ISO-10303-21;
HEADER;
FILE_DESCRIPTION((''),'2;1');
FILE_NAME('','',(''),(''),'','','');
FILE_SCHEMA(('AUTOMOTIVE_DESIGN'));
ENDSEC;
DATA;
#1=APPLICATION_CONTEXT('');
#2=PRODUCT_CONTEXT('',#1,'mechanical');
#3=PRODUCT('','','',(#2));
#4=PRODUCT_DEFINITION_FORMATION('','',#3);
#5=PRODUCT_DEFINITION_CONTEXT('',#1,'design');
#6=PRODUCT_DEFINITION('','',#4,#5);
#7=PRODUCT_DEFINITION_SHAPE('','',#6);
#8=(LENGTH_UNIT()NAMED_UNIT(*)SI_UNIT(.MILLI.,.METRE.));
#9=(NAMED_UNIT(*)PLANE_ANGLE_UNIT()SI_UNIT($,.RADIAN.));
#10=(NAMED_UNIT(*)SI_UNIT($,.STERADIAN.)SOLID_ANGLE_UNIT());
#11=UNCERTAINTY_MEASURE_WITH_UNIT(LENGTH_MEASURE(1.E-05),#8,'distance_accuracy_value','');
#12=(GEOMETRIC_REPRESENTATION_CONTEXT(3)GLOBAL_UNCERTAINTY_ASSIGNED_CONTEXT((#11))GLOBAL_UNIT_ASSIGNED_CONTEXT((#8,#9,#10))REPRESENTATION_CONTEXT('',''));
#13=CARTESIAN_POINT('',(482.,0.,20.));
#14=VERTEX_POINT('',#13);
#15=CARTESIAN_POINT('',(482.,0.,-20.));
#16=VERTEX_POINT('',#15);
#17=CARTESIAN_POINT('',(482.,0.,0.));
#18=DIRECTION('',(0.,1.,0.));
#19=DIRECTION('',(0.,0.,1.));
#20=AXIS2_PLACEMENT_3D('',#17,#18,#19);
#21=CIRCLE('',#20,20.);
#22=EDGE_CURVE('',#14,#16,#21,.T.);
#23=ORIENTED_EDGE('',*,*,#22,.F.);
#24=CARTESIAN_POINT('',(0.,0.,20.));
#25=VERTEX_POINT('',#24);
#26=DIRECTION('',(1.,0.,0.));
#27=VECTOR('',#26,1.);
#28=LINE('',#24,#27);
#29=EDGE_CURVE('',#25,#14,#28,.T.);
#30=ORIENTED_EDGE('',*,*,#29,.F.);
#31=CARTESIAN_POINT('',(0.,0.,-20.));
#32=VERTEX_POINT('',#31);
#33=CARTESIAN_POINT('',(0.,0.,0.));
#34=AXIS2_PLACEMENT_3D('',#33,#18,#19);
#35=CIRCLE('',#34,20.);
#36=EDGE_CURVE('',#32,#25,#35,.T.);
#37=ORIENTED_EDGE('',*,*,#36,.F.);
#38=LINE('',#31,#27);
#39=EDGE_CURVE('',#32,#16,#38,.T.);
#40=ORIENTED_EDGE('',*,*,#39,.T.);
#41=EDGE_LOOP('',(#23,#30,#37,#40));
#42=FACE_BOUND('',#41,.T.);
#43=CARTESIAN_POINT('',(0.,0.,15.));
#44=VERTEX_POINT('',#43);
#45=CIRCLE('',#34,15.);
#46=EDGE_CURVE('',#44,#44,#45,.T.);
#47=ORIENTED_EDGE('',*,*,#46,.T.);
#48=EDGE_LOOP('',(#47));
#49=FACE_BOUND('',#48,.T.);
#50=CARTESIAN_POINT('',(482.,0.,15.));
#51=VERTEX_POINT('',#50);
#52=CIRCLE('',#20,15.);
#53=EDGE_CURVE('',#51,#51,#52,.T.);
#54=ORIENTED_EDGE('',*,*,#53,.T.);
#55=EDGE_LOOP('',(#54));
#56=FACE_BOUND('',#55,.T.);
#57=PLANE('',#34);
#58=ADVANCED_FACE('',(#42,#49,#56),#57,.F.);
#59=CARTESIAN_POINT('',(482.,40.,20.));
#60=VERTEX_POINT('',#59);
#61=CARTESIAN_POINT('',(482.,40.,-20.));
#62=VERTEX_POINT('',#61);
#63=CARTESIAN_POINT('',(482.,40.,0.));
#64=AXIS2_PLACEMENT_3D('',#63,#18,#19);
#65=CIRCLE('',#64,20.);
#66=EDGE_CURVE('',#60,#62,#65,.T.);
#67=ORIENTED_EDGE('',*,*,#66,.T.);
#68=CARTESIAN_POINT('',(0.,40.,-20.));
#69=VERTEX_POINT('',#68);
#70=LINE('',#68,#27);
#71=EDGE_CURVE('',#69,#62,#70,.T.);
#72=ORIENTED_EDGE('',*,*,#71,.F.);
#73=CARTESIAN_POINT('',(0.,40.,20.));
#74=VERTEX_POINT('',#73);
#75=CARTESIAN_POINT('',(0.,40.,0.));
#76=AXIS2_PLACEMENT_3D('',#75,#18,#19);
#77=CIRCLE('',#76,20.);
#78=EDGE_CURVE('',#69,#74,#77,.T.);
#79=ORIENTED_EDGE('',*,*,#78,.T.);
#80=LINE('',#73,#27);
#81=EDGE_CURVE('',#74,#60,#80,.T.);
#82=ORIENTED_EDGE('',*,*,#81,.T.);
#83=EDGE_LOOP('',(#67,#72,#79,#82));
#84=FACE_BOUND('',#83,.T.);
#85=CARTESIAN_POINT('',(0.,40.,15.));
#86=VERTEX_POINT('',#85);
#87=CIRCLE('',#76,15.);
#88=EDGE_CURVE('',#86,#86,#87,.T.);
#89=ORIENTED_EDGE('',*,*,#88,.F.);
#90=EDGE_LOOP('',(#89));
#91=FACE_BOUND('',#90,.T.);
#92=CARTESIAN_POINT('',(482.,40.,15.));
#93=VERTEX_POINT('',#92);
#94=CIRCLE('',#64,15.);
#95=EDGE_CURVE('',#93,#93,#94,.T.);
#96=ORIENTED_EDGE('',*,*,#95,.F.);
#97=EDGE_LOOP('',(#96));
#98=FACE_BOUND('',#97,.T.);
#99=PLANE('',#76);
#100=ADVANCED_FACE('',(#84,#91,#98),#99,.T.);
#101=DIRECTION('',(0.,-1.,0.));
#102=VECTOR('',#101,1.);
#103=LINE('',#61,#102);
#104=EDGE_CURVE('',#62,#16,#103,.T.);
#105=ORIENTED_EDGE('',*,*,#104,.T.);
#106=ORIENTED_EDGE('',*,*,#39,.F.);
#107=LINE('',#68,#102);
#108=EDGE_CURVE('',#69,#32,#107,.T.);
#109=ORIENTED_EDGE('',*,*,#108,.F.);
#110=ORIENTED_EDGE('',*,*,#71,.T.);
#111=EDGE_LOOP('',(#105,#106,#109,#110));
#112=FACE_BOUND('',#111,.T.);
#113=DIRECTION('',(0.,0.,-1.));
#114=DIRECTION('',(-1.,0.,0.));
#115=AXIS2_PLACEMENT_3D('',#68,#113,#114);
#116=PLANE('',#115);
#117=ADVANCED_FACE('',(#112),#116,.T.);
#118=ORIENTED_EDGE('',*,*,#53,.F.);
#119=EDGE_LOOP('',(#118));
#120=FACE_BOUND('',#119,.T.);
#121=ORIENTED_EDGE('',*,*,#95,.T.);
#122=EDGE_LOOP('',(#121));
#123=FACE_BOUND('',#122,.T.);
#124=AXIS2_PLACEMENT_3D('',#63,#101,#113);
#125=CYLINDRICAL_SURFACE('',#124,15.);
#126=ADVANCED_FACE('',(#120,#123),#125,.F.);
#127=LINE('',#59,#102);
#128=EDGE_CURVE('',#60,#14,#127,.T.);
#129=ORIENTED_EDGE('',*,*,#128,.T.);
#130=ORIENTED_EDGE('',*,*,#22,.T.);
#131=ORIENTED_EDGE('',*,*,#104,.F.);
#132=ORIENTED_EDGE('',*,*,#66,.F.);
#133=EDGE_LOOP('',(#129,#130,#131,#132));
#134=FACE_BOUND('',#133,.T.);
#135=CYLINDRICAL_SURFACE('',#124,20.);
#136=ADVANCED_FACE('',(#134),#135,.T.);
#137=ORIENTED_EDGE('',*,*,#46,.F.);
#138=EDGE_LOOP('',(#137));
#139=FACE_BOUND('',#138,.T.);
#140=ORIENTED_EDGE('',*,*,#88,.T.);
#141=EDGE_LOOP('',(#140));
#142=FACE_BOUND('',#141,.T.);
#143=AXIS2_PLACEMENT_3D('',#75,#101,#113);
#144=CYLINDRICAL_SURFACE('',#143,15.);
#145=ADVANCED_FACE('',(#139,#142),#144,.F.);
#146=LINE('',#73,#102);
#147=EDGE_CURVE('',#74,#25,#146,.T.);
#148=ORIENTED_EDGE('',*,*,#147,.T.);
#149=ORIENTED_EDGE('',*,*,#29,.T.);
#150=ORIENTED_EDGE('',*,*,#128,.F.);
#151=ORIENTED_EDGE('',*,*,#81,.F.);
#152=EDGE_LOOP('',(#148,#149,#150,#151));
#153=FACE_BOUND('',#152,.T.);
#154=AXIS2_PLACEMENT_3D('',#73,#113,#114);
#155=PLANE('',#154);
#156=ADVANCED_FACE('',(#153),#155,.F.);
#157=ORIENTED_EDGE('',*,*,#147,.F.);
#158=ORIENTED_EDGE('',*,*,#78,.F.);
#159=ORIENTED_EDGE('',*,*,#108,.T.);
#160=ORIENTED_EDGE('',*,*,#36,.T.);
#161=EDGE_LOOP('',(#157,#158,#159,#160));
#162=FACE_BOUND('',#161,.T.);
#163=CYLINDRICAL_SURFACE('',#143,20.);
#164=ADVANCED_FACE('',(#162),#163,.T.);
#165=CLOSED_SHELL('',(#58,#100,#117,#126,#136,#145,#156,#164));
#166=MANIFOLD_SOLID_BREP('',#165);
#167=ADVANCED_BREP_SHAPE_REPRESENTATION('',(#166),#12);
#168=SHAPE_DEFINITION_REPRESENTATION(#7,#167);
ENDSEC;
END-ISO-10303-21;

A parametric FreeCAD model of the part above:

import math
import FreeCAD as App
import Part
import Sketcher

V = App.Vector
Q = App.Units.Quantity

doc = App.newDocument("Part")
params = doc.addObject("Spreadsheet::Sheet", "Params")
for row, (alias, value) in enumerate([
    ("sketch1_diameter", "30 mm"),
    ("sketch1_radius", "20 mm"),
    ("sketch1_width", "482 mm"),
    ("pad1_length", "40 mm"),
], start=1):
    params.set(f"A{row}", alias)
    params.set(f"B{row}", "=" + value)
    params.setAlias(f"B{row}", alias)

body = doc.addObject("PartDesign::Body", "Body")

# Sketch on XZ plane
sketch1 = body.newObject("Sketcher::SketchObject", "Sketch")
sketch1.AttachmentSupport = (doc.getObject("XZ_Plane"), [""])
sketch1.MapMode = "FlatFace"
sketch1.addGeometry([
    Part.LineSegment(V(482, -20, 0), V(0, -20, 0)),  # 0
    Part.ArcOfCircle(Part.Circle(V(0, 0, 0), V(0, 0, 1), 20), math.radians(90), math.radians(270)),  # 1
    Part.LineSegment(V(0, 20, 0), V(482, 20, 0)),  # 2
    Part.ArcOfCircle(Part.Circle(V(482, 0, 0), V(0, 0, 1), 20), math.radians(-90), math.radians(90)),  # 3
    Part.Circle(V(482, 0, 0), V(0, 0, 1), 15),  # 4
    Part.Circle(V(0, 0, 0), V(0, 0, 1), 15),  # 5
], False)
sketch1.addConstraint([
    Sketcher.Constraint("Tangent", 0, 2, 1, 2),
    Sketcher.Constraint("Tangent", 1, 1, 2, 1),
    Sketcher.Constraint("Tangent", 2, 2, 3, 2),
    Sketcher.Constraint("Tangent", 3, 1, 0, 1),
    Sketcher.Constraint("Horizontal", 0),
    Sketcher.Constraint("Horizontal", 2),
    Sketcher.Constraint("Coincident", 1, 3, -1, 1),
    Sketcher.Constraint("Coincident", 5, 3, -1, 1),
    Sketcher.Constraint("Coincident", 4, 3, 3, 3),
    Sketcher.Constraint("Equal", 4, 5),
    Sketcher.Constraint("Diameter", 4, Q("30 mm")),
    Sketcher.Constraint("Radius", 1, Q("20 mm")),
    Sketcher.Constraint("DistanceX", 0, 2, 0, 1, Q("482 mm")),
])
sketch1.setExpression("Constraints[10]", "Params.sketch1_diameter")
sketch1.setExpression("Constraints[11]", "Params.sketch1_radius")
sketch1.setExpression("Constraints[12]", "Params.sketch1_width")
pad1 = body.newObject("PartDesign::Pad", "Pad")
pad1.Profile = sketch1
pad1.setExpression("Length", "Params.pad1_length")
pad1.Reversed = True

doc.recompute()
